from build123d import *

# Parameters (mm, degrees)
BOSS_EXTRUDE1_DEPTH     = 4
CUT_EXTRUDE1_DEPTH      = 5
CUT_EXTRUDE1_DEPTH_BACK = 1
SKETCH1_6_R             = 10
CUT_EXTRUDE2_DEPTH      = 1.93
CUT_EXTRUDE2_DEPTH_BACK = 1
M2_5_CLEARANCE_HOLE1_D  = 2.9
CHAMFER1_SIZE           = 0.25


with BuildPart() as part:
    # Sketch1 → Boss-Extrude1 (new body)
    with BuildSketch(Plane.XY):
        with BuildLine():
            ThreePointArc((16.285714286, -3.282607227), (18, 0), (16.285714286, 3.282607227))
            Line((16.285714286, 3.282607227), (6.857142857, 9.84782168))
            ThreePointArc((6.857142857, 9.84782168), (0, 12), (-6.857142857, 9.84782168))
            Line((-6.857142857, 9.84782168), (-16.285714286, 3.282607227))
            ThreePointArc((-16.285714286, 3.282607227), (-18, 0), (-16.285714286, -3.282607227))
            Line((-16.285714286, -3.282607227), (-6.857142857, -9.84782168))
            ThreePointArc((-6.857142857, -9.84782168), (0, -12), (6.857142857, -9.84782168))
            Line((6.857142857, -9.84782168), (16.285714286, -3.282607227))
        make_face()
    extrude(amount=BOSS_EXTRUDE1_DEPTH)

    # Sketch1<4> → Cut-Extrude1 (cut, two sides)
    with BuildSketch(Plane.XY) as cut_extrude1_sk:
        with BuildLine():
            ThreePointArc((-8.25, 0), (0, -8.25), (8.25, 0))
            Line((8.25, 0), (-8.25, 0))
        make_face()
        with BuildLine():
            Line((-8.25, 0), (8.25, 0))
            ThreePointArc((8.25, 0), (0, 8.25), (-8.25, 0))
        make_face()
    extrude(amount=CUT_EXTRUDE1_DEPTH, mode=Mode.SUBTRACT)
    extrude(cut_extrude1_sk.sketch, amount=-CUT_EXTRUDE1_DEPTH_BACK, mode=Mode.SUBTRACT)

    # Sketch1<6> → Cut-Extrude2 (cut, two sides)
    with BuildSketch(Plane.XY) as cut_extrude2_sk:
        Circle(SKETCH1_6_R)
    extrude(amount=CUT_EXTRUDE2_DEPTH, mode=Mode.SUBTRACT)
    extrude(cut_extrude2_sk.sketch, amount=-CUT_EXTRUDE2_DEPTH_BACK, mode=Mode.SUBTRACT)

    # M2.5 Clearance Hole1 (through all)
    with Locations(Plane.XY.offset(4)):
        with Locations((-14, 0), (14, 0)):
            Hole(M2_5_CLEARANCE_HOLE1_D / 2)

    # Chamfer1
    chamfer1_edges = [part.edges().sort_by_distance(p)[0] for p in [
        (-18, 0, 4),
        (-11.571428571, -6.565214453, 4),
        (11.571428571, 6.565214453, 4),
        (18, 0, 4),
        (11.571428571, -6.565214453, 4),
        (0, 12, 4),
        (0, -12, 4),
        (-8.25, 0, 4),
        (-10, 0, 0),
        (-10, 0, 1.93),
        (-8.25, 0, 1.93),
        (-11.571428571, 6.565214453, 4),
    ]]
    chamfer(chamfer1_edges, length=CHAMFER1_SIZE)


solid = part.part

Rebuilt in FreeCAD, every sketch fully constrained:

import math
import FreeCAD as App
import Part
import Sketcher


def edges_at(feature, points):
    """Names of the edges that pass closest to the given points."""
    edges = feature.Shape.Edges
    near = lambda p: min(range(len(edges)), key=lambda i: edges[i].distToShape(Part.Vertex(*p))[0])
    return sorted({f"Edge{near(p) + 1}" for p in points})

doc = App.newDocument("Part")
body = doc.addObject("PartDesign::Body", "Body")

# Sketch on XY plane
sketch1 = doc.addObject("Sketcher::SketchObject", "Sketch")
body.addObject(sketch1)
sketch1.AttachmentSupport = (doc.XY_Plane, [""])
sketch1.MapMode = "FlatFace"
sketch1.addGeometry([
    Part.ArcOfCircle(Part.Circle(App.Vector(14, 0, 0), App.Vector(0, 0, 1), 4), math.radians(-55), math.radians(55)),  # 0
    Part.LineSegment(App.Vector(16.3, 3.3, 0), App.Vector(6.9, 9.8, 0)),  # 1
    Part.ArcOfCircle(Part.Circle(App.Vector(0, 0, 0), App.Vector(0, 0, 1), 12), math.radians(55), math.radians(125)),  # 2
    Part.LineSegment(App.Vector(-6.9, 9.8, 0), App.Vector(-16.3, 3.3, 0)),  # 3
    Part.ArcOfCircle(Part.Circle(App.Vector(-14, 0, 0), App.Vector(0, 0, 1), 4), math.radians(125), math.radians(235)),  # 4
    Part.LineSegment(App.Vector(-16.3, -3.3, 0), App.Vector(-6.9, -9.8, 0)),  # 5
    Part.ArcOfCircle(Part.Circle(App.Vector(0, 0, 0), App.Vector(0, 0, 1), 12), math.radians(-125), math.radians(-55)),  # 6
    Part.LineSegment(App.Vector(6.9, -9.8, 0), App.Vector(16.3, -3.3, 0)),  # 7
], False)
sketch1.addConstraint([
    Sketcher.Constraint("Tangent", 0, 2, 1, 1),
    Sketcher.Constraint("Tangent", 1, 2, 2, 1),
    Sketcher.Constraint("Tangent", 2, 2, 3, 1),
    Sketcher.Constraint("Tangent", 3, 2, 4, 1),
    Sketcher.Constraint("Tangent", 4, 2, 5, 1),
    Sketcher.Constraint("Tangent", 5, 2, 6, 1),
    Sketcher.Constraint("Tangent", 6, 2, 7, 1),
    Sketcher.Constraint("Tangent", 7, 2, 0, 1),
    Sketcher.Constraint("Coincident", 2, 3, -1, 1),
    Sketcher.Constraint("Coincident", 6, 3, -1, 1),
    Sketcher.Constraint("Equal", 0, 4),
    Sketcher.Constraint("Equal", 2, 6),
    Sketcher.Constraint("Symmetric", 0, 3, 4, 3, -1, 1),
    Sketcher.Constraint("PointOnObject", 0, 3, -1),
    Sketcher.Constraint("Radius", 0, 4.0),
    Sketcher.Constraint("Radius", 2, 12.0),
    Sketcher.Constraint("DistanceX", -1, 1, 0, 3, 14.0),
])
pad1 = doc.addObject("PartDesign::Pad", "Pad")
body.addObject(pad1)
pad1.Profile = sketch1
pad1.Length = 4

# Sketch on XY plane
sketch2 = doc.addObject("Sketcher::SketchObject", "Sketch001")
body.addObject(sketch2)
sketch2.AttachmentSupport = (doc.XY_Plane, [""])
sketch2.MapMode = "FlatFace"
sketch2.addGeometry(Part.Circle(App.Vector(0, 0, 0), App.Vector(0, 0, 1), 8), False)
sketch2.addConstraint([
    Sketcher.Constraint("Coincident", 0, 3, -1, 1),
    Sketcher.Constraint("Diameter", 0, 16.5),
])
pocket1 = doc.addObject("PartDesign::Pocket", "Pocket")
body.addObject(pocket1)
pocket1.Profile = sketch2
pocket1.Type = "ThroughAll"
pocket1.Midplane = True

# Sketch on XY plane
sketch3 = doc.addObject("Sketcher::SketchObject", "Sketch002")
body.addObject(sketch3)
sketch3.AttachmentSupport = (doc.XY_Plane, [""])
sketch3.MapMode = "FlatFace"
sketch3.addGeometry(Part.Circle(App.Vector(0, 0, 0), App.Vector(0, 0, 1), 10), False)
sketch3.addConstraint([
    Sketcher.Constraint("Coincident", 0, 3, -1, 1),
    Sketcher.Constraint("Diameter", 0, 20.0),
])
pocket2 = doc.addObject("PartDesign::Pocket", "Pocket001")
body.addObject(pocket2)
pocket2.Profile = sketch3
pocket2.Type = "TwoLengths"
pocket2.Length = 1.93
pocket2.Length2 = 1
pocket2.Reversed = True

# Sketch on XY plane
sketch4 = doc.addObject("Sketcher::SketchObject", "Sketch003")
body.addObject(sketch4)
sketch4.AttachmentSupport = (doc.XY_Plane, [""])
sketch4.MapMode = "FlatFace"
sketch4.AttachmentOffset = App.Placement(App.Vector(0, 0, 4), App.Rotation())
sketch4.addGeometry([
    Part.Circle(App.Vector(-14, 0, 0), App.Vector(0, 0, 1), 1.4),
    Part.Circle(App.Vector(14, 0, 0), App.Vector(0, 0, 1), 1.4),
], False)
sketch4.addConstraint([
    Sketcher.Constraint("Equal", 0, 1),
    Sketcher.Constraint("Symmetric", 0, 3, 1, 3, -1, 1),
    Sketcher.Constraint("PointOnObject", 0, 3, -1),
    Sketcher.Constraint("Diameter", 0, 2.9),
    Sketcher.Constraint("DistanceX", 0, 3, -1, 1, 14.0),
])
doc.recompute()
hole = doc.addObject("PartDesign::Hole", "Hole")
body.addObject(hole)
hole.Profile = sketch4
hole.ThreadType = "None"
hole.Diameter = 2.9
hole.DepthType = "ThroughAll"
doc.recompute()

chamfer = doc.addObject("PartDesign::Chamfer", "Chamfer")
body.addObject(chamfer)
chamfer.Base = (hole, edges_at(hole, [
    (-18, 0, 4),
    (-11.571, -6.565, 4),
    (11.571, 6.565, 4),
    (18, 0, 4),
    (11.571, -6.565, 4),
    (0, 12, 4),
    (0, -12, 4),
    (-8.25, 0, 4),
    (-10, 0, 0),
    (-10, 0, 1.93),
    (-8.25, 0, 1.93),
    (-11.571, 6.565, 4),
]))
chamfer.Size = 0.25

doc.recompute()
